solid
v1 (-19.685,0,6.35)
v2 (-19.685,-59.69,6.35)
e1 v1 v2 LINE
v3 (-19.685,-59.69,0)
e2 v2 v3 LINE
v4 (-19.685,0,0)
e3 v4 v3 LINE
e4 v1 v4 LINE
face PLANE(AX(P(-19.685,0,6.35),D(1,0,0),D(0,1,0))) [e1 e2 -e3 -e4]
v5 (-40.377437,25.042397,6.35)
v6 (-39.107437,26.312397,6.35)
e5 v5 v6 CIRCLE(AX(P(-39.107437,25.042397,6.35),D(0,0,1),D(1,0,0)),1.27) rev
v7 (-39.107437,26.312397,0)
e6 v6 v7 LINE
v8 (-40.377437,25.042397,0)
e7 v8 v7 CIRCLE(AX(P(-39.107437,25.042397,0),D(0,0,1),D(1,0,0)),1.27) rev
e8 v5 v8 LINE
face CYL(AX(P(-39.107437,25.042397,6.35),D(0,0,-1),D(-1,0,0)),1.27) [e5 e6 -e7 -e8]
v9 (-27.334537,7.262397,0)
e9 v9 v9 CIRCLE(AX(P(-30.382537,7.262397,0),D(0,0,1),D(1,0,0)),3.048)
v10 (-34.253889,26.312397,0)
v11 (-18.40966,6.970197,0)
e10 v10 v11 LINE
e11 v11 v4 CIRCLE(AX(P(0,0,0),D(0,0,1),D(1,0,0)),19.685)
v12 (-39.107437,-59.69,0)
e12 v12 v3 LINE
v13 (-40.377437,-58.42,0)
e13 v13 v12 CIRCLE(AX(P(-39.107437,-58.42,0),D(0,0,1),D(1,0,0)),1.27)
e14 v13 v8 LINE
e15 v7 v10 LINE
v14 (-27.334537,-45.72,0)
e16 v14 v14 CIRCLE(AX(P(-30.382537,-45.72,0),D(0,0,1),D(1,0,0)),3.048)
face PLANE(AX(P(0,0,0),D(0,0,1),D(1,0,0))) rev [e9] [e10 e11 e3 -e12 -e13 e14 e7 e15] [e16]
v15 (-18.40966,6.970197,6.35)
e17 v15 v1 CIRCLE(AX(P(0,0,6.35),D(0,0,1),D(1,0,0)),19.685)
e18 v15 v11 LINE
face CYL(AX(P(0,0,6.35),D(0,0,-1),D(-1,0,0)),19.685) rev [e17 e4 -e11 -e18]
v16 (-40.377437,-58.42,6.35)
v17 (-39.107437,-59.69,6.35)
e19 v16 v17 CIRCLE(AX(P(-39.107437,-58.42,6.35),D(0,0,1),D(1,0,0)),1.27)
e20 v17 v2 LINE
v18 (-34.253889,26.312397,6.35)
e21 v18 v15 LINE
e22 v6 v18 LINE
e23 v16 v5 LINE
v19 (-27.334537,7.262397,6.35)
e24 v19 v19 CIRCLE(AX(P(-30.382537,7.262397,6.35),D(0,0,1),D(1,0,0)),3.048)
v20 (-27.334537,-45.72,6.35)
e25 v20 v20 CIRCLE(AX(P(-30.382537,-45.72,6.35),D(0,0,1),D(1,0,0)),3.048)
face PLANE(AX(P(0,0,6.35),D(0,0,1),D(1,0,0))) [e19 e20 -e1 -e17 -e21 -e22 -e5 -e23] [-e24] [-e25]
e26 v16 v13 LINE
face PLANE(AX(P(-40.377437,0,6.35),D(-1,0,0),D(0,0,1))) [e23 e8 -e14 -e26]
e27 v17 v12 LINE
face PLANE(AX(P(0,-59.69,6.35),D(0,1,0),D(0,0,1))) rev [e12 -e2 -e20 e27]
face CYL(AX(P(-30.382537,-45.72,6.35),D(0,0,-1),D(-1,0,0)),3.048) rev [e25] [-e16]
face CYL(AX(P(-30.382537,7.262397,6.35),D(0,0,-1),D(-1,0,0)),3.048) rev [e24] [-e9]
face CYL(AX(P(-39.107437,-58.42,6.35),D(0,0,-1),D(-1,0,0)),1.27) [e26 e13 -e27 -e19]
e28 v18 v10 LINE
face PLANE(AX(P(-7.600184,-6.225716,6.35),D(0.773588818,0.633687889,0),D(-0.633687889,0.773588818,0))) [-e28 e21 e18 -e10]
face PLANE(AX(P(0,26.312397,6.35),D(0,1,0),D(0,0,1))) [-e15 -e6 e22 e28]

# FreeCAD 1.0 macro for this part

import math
import FreeCAD as App
import Part
import Sketcher
Q = App.Units.Quantity

doc = App.newDocument("Part")
params = doc.addObject("Spreadsheet::Sheet", "Params")
for row, (alias, value) in enumerate([
    ("sketch1_diameter", "0.24 in"),
    ("sketch1_radius", "0.05 in"),
    ("sketch1_radius2", "0.775 in"),
    ("sketch1_height", "2.35 in"),
    ("pad1_length", "0.25 in"),
], start=1):
    params.set(f"A{row}", alias)
    params.set(f"B{row}", "=" + value)
    params.setAlias(f"B{row}", alias)

body = doc.addObject("PartDesign::Body", "Body")

# Sketch on XY plane
sketch1 = doc.addObject("Sketcher::SketchObject", "Sketch")
body.addObject(sketch1)
sketch1.AttachmentSupport = (doc.XY_Plane, [""])
sketch1.MapMode = "FlatFace"
sketch1.addGeometry(Part.ArcOfCircle(Part.Circle(App.Vector(0, 0, 0), App.Vector(0, 0, 1), 19.7), math.radians(159), math.radians(180)), False)
sketch1.addGeometry(Part.LineSegment(App.Vector(-18.4, 7, 0), App.Vector(-34.3, 26.3, 0)), False)
sketch1.addGeometry(Part.LineSegment(App.Vector(-34.3, 26.3, 0), App.Vector(-39.1, 26.3, 0)), False)
sketch1.addGeometry(Part.ArcOfCircle(Part.Circle(App.Vector(-39.1, 25, 0), App.Vector(0, 0, 1), 1.3), math.radians(90), math.radians(180)), False)
sketch1.addGeometry(Part.LineSegment(App.Vector(-40.4, 25, 0), App.Vector(-40.4, -58.4, 0)), False)
sketch1.addGeometry(Part.ArcOfCircle(Part.Circle(App.Vector(-39.1, -58.4, 0), App.Vector(0, 0, 1), 1.3), math.radians(180), math.radians(270)), False)
sketch1.addGeometry(Part.LineSegment(App.Vector(-39.1, -59.7, 0), App.Vector(-19.7, -59.7, 0)), False)
sketch1.addGeometry(Part.LineSegment(App.Vector(-19.7, -59.7, 0), App.Vector(-19.7, 0, 0)), False)
sketch1.addGeometry(Part.Circle(App.Vector(-30.4, -45.7, 0), App.Vector(0, 0, 1), 3), False)
sketch1.addGeometry(Part.Circle(App.Vector(-30.4, 7.3, 0), App.Vector(0, 0, 1), 3), False)
sketch1.addConstraint(Sketcher.Constraint("Coincident", 0, 1, 1, 1))
sketch1.addConstraint(Sketcher.Constraint("Coincident", 1, 2, 2, 1))
sketch1.addConstraint(Sketcher.Constraint("Tangent", 2, 2, 3, 1))
sketch1.addConstraint(Sketcher.Constraint("Tangent", 3, 2, 4, 1))
sketch1.addConstraint(Sketcher.Constraint("Tangent", 4, 2, 5, 1))
sketch1.addConstraint(Sketcher.Constraint("Tangent", 5, 2, 6, 1))
sketch1.addConstraint(Sketcher.Constraint("Coincident", 6, 2, 7, 1))
sketch1.addConstraint(Sketcher.Constraint("Tangent", 7, 2, 0, 2))
sketch1.addConstraint(Sketcher.Constraint("Horizontal", 2))
sketch1.addConstraint(Sketcher.Constraint("Vertical", 4))
sketch1.addConstraint(Sketcher.Constraint("Horizontal", 6))
sketch1.addConstraint(Sketcher.Constraint("Vertical", 7))
sketch1.addConstraint(Sketcher.Constraint("Coincident", 0, 3, -1, 1))
sketch1.addConstraint(Sketcher.Constraint("Equal", 3, 5))
sketch1.addConstraint(Sketcher.Constraint("Equal", 8, 9))
sketch1.addConstraint(Sketcher.Constraint("Vertical", 8, 3, 9, 3))
sketch1.addConstraint(Sketcher.Constraint("Diameter", 8, Q("0.24 in")))
sketch1.addConstraint(Sketcher.Constraint("Radius", 3, Q("0.05 in")))
sketch1.addConstraint(Sketcher.Constraint("Radius", 0, Q("0.775 in")))
sketch1.addConstraint(Sketcher.Constraint("DistanceY", 7, 1, 7, 2, Q("2.35 in")))
sketch1.addConstraint(Sketcher.Constraint("DistanceY", 8, 3, -1, 1, Q("1.8 in")))
sketch1.addConstraint(Sketcher.Constraint("DistanceY", 9, 3, 3, 3, Q("0.7 in")))
sketch1.addConstraint(Sketcher.Constraint("DistanceX", 5, 3, 8, 3, Q("0.3435 in")))
sketch1.addConstraint(Sketcher.Constraint("DistanceX", 2, 2, 2, 1, Q("4.853548 mm")))
sketch1.addConstraint(Sketcher.Constraint("DistanceY", 0, 1, 9, 3, Q("0.2922 mm")))
sketch1.addConstraint(Sketcher.Constraint("DistanceX", 6, 1, 6, 2, Q("19.422437 mm")))
sketch1.addConstraint(Sketcher.Constraint("DistanceY", 4, 2, 4, 1, Q("83.462397 mm")))
sketch1.setExpression("Constraints[16]", "Params.sketch1_diameter")
sketch1.setExpression("Constraints[17]", "Params.sketch1_radius")
sketch1.setExpression("Constraints[18]", "Params.sketch1_radius2")
sketch1.setExpression("Constraints[19]", "Params.sketch1_height")
pad1 = doc.addObject("PartDesign::Pad", "Pad")
body.addObject(pad1)
pad1.Profile = sketch1
pad1.setExpression("Length", "Params.pad1_length")

doc.recompute()
